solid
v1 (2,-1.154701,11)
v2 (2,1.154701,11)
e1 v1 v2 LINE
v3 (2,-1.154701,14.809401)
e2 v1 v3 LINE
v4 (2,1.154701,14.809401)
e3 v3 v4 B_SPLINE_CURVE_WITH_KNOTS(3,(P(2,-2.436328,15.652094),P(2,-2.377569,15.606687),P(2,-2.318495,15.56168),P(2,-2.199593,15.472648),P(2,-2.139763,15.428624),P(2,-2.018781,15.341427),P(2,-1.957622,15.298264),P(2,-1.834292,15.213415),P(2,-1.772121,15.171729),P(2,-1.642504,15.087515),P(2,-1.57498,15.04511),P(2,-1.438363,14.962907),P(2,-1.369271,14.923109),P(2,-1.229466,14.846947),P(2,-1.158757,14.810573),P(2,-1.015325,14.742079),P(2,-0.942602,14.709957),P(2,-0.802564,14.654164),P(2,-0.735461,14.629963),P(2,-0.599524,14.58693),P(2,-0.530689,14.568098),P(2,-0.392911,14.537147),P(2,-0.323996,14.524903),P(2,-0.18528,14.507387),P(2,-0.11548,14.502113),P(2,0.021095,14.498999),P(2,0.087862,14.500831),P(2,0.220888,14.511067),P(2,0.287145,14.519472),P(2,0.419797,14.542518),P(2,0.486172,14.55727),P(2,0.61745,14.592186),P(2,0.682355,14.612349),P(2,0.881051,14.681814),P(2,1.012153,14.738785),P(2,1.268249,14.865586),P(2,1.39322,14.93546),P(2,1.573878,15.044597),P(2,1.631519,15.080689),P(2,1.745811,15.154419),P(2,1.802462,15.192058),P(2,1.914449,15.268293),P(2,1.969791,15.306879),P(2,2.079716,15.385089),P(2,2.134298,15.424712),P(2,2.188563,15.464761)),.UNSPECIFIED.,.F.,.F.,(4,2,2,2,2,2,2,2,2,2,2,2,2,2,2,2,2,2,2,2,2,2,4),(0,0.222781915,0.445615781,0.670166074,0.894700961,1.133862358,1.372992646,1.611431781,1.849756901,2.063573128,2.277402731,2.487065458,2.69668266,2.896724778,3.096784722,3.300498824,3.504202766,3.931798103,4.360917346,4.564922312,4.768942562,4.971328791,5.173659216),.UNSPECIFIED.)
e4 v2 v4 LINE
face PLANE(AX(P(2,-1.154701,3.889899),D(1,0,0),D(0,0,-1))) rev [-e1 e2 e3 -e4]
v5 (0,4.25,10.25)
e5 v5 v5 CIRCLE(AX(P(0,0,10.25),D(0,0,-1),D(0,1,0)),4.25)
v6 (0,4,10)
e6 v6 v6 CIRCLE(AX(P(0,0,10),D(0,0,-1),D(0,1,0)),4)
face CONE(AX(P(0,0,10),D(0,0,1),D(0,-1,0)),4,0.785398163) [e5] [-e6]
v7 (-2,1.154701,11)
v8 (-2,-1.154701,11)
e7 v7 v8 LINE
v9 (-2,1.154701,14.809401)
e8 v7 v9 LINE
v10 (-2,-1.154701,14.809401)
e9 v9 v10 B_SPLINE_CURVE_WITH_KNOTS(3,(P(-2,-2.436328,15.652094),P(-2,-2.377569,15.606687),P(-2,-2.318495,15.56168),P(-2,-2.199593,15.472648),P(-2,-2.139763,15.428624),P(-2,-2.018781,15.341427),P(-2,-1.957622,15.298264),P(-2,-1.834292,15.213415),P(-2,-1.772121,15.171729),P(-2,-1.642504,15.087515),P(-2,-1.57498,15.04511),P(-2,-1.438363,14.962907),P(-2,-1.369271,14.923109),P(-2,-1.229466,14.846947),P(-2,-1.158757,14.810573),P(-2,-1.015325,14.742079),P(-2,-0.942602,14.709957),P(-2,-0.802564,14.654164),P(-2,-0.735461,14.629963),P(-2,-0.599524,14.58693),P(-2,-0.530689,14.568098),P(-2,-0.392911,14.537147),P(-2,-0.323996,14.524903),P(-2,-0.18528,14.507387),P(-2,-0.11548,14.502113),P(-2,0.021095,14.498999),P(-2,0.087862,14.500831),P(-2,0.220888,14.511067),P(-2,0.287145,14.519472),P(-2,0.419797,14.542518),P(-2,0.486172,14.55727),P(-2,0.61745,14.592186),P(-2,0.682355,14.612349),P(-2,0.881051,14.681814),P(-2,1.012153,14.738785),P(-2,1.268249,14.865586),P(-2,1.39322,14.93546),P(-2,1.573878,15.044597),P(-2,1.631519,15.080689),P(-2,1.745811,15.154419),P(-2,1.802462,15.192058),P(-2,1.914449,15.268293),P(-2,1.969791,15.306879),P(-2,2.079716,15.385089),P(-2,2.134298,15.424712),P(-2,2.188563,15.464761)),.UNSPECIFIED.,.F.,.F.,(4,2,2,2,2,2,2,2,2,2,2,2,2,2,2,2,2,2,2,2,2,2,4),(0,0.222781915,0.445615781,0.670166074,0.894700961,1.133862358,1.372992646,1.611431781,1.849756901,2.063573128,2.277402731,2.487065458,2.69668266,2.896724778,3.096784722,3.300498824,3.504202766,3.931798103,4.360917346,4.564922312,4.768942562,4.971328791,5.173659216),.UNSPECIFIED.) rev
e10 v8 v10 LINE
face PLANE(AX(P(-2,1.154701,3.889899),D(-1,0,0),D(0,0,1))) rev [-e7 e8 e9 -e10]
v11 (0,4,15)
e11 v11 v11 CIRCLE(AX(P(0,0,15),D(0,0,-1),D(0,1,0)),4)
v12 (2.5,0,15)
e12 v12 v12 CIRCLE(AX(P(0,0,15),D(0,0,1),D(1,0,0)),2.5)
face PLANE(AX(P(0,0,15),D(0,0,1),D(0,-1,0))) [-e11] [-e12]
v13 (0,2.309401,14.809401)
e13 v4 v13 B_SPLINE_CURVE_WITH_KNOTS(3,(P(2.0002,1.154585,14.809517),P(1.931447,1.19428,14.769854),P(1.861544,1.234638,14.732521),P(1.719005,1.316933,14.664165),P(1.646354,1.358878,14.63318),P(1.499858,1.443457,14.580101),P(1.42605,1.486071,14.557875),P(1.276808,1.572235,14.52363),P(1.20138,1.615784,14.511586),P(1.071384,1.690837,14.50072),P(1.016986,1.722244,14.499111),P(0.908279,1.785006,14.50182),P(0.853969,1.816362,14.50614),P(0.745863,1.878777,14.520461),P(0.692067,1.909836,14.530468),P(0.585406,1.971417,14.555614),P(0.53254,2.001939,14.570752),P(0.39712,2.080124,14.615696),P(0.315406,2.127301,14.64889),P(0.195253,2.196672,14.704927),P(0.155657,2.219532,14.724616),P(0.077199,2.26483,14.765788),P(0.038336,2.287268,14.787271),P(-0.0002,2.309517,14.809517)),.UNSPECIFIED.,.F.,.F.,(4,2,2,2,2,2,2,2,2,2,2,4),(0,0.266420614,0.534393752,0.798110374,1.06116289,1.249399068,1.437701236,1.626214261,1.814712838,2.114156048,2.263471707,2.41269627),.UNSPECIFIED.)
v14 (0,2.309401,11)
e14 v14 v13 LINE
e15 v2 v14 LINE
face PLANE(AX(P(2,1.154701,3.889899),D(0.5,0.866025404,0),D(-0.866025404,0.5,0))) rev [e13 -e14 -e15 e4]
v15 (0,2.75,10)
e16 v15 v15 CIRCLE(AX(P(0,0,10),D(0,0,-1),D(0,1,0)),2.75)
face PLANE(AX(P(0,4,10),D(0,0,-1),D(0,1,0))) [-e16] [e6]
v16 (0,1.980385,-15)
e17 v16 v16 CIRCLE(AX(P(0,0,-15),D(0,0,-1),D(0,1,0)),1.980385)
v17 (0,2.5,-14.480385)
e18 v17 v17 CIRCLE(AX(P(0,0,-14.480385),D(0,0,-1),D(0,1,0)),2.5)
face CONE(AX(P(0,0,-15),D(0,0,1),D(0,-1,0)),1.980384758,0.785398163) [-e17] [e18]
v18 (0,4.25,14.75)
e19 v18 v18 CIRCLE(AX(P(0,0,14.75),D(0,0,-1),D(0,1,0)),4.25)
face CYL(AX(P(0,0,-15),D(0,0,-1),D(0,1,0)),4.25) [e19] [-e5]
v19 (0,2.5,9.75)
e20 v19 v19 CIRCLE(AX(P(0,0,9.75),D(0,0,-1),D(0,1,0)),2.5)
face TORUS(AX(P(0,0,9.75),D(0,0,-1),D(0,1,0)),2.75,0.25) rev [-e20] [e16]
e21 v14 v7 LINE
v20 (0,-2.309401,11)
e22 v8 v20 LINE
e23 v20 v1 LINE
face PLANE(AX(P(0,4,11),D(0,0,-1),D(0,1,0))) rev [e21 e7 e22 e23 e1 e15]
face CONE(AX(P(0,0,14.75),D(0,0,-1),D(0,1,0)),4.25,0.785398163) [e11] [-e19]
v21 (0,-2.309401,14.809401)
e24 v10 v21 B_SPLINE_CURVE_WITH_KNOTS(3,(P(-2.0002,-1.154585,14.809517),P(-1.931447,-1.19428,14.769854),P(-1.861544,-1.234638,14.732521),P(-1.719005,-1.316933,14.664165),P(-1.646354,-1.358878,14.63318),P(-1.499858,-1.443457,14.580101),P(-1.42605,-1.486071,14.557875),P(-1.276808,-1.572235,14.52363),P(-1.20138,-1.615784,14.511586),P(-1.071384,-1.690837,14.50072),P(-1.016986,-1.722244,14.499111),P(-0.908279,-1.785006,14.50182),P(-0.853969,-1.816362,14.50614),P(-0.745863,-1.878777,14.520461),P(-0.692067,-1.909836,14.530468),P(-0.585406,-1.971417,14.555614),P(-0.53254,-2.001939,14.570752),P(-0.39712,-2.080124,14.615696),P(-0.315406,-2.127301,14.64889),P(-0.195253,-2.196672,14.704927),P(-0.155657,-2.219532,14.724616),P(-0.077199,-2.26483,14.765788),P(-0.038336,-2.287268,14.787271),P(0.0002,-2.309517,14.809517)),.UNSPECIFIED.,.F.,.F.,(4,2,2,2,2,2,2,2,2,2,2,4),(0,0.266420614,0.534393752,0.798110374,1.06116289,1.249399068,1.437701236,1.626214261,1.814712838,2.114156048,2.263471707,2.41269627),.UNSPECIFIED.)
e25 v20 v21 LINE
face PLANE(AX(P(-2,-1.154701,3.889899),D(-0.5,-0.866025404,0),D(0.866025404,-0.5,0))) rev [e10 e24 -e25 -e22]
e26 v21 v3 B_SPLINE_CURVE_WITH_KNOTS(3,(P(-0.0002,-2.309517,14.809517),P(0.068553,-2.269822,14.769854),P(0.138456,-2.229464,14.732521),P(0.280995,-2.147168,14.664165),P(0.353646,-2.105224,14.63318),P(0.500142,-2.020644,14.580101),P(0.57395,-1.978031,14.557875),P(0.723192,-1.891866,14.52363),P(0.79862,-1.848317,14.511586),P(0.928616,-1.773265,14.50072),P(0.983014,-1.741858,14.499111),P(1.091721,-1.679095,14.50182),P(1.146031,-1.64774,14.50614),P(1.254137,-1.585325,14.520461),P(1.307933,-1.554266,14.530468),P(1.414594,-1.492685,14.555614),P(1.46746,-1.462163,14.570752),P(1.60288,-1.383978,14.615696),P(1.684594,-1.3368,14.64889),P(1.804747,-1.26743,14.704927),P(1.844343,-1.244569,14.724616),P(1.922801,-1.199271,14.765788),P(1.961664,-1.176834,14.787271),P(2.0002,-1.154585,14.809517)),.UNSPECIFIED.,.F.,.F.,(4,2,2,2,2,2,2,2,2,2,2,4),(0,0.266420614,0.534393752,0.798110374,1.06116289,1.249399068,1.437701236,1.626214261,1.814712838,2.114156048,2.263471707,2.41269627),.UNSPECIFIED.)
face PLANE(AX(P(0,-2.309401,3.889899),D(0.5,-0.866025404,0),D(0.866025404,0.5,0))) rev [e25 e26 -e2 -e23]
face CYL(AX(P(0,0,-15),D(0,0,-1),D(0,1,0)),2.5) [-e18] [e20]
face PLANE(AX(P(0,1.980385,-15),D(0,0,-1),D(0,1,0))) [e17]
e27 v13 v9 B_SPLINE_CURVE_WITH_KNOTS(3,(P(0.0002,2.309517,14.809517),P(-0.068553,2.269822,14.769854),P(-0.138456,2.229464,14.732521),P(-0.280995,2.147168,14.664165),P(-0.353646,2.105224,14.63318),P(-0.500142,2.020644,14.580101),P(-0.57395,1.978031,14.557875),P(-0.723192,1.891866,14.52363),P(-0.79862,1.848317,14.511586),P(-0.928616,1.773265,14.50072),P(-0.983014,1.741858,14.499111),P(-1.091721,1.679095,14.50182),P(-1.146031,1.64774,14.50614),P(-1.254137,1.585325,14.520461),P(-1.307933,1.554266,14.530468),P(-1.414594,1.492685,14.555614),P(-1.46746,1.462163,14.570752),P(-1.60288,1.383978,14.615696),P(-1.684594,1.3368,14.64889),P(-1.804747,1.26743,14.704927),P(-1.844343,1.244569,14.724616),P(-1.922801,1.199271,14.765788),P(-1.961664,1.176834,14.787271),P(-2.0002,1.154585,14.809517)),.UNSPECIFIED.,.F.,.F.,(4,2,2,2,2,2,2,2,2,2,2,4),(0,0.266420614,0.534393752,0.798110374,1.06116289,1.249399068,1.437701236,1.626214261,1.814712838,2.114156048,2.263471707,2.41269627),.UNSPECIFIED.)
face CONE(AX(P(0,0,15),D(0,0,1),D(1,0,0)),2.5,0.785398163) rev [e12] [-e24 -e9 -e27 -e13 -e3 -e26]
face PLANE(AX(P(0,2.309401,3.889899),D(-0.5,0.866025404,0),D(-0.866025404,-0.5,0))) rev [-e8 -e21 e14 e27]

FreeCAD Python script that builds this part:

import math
import FreeCAD as App
import Part
import Sketcher
from FreeCAD import Vector
Q = App.Units.Quantity


def add_polygon(sketch, points):
    """Adds a closed chain of lines whose ends are joined by coincident constraints."""
    first, n = sketch.GeometryCount, len(points)
    for a, b in zip(points, points[1:] + points[:1]):
        sketch.addGeometry(Part.LineSegment(App.Vector(*a, 0), App.Vector(*b, 0)), False)
    for i in range(n):
        sketch.addConstraint(Sketcher.Constraint("Coincident", first + i, 2, first + (i + 1) % n, 1))

doc = App.newDocument("Part")
body = doc.addObject("PartDesign::Body", "Body")

# Sketch on YZ plane
sketch1 = doc.addObject("Sketcher::SketchObject", "Sketch")
body.addObject(sketch1)
sketch1.AttachmentSupport = (doc.YZ_Plane, [""])
sketch1.MapMode = "FlatFace"
sketch1.addGeometry([
    Part.LineSegment(Vector(4, 15, 0), Vector(0, 15, 0)),  # 0
    Part.LineSegment(Vector(0, 15, 0), Vector(0, -15, 0)),  # 1
    Part.LineSegment(Vector(0, -15, 0), Vector(1.980385, -15, 0)),  # 2
    Part.LineSegment(Vector(1.980385, -15, 0), Vector(2.5, -14.480385, 0)),  # 3
    Part.LineSegment(Vector(2.5, -14.480385, 0), Vector(2.5, 9.75, 0)),  # 4
    Part.ArcOfCircle(Part.Circle(Vector(2.75, 9.75, 0), Vector(0, 0, 1), 0.25), math.radians(90), math.radians(180)),  # 5
    Part.LineSegment(Vector(2.75, 10, 0), Vector(4, 10, 0)),  # 6
    Part.LineSegment(Vector(4, 10, 0), Vector(4.25, 10.25, 0)),  # 7
    Part.LineSegment(Vector(4.25, 10.25, 0), Vector(4.25, 14.75, 0)),  # 8
    Part.LineSegment(Vector(4.25, 14.75, 0), Vector(4, 15, 0)),  # 9
], False)
sketch1.addConstraint([
    Sketcher.Constraint("Coincident", 0, 2, 1, 1),
    Sketcher.Constraint("Coincident", 1, 2, 2, 1),
    Sketcher.Constraint("Coincident", 2, 2, 3, 1),
    Sketcher.Constraint("Coincident", 3, 2, 4, 1),
    Sketcher.Constraint("Tangent", 4, 2, 5, 2),
    Sketcher.Constraint("Tangent", 5, 1, 6, 1),
    Sketcher.Constraint("Coincident", 6, 2, 7, 1),
    Sketcher.Constraint("Coincident", 7, 2, 8, 1),
    Sketcher.Constraint("Coincident", 8, 2, 9, 1),
    Sketcher.Constraint("Coincident", 9, 2, 0, 1),
    Sketcher.Constraint("Horizontal", 0),
    Sketcher.Constraint("Vertical", 1),
    Sketcher.Constraint("Horizontal", 2),
    Sketcher.Constraint("Vertical", 4),
    Sketcher.Constraint("Horizontal", 6),
    Sketcher.Constraint("Vertical", 8),
    Sketcher.Constraint("Symmetric", 0, 2, 1, 2, -1, 1),
    Sketcher.Constraint("Parallel", 3, 7),
    Sketcher.Constraint("Perpendicular", 7, 9),
    Sketcher.Constraint("Vertical", 6, 2, 9, 2),
    Sketcher.Constraint("Equal", 7, 9),
    Sketcher.Constraint("DistanceX", 0, 2, 0, 1, 4.0),
    Sketcher.Constraint("DistanceY", 1, 2, 1, 1, 30.0),
    Sketcher.Constraint("Radius", 5, 0.25),
    Sketcher.Constraint("DistanceY", 8, 1, 8, 2, 4.5),
    Sketcher.Constraint("DistanceY", -1, 1, 5, 1, 10.0),
    Sketcher.Constraint("DistanceX", 6, 1, 6, 2, 1.25),
    Sketcher.Constraint("DistanceX", 2, 1, 2, 2, 1.980385),
])
revolution = doc.addObject("PartDesign::Revolution", "Revolution")
body.addObject(revolution)
revolution.Profile = sketch1
revolution.ReferenceAxis = (sketch1, ["V_Axis"])
revolution.Angle = 360

# Sketch on XY plane
sketch2 = doc.addObject("Sketcher::SketchObject", "Sketch001")
body.addObject(sketch2)
sketch2.AttachmentSupport = (doc.XY_Plane, [""])
sketch2.MapMode = "FlatFace"
sketch2.AttachmentOffset = App.Placement(Vector(0, 0, 15), App.Rotation())
add_polygon(sketch2, [(2, -1.154701), (2, 1.154701), (0, 2.309401), (-2, 1.154701), (-2, -1.154701), (0, -2.309401)])  # lines 0-5
sketch2.addConstraint([
    Sketcher.Constraint("Vertical", 0),
    Sketcher.Constraint("Vertical", 3),
    Sketcher.Constraint("Symmetric", 0, 2, 3, 2, -1, 1),
    Sketcher.Constraint("Symmetric", 1, 2, 4, 2, -1, 1),
    Sketcher.Constraint("PointOnObject", 1, 2, -2),
    Sketcher.Constraint("Parallel", 2, 5),
    Sketcher.Constraint("Horizontal", 0, 2, 2, 2),
    Sketcher.Constraint("Angle", 1, Q("150 deg")),
    Sketcher.Constraint("DistanceX", -1, 1, 0, 2, 2.0),
    Sketcher.Constraint("DistanceY", 0, 1, 0, 2, 2.309401),
])
pocket1 = doc.addObject("PartDesign::Pocket", "Pocket")
body.addObject(pocket1)
pocket1.Profile = sketch2
pocket1.Length = 4

# Sketch on YZ plane
sketch3 = doc.addObject("Sketcher::SketchObject", "Sketch002")
body.addObject(sketch3)
sketch3.AttachmentSupport = (doc.YZ_Plane, [""])
sketch3.MapMode = "FlatFace"
add_polygon(sketch3, [(0, 15), (-2.5, 15), (0, 12.5)])  # lines 0-2
sketch3.addConstraint([
    Sketcher.Constraint("Horizontal", 0),
    Sketcher.Constraint("Vertical", 2),
    Sketcher.Constraint("PointOnObject", 1, 2, -2),
    Sketcher.Constraint("Equal", 0, 2),
    Sketcher.Constraint("DistanceX", 0, 2, 0, 1, 2.5),
    Sketcher.Constraint("DistanceY", -1, 1, 0, 2, 15.0),
])
groove = doc.addObject("PartDesign::Groove", "Groove")
body.addObject(groove)
groove.Profile = sketch3
groove.ReferenceAxis = (sketch3, ["V_Axis"])
groove.Angle = 360

doc.recompute()
